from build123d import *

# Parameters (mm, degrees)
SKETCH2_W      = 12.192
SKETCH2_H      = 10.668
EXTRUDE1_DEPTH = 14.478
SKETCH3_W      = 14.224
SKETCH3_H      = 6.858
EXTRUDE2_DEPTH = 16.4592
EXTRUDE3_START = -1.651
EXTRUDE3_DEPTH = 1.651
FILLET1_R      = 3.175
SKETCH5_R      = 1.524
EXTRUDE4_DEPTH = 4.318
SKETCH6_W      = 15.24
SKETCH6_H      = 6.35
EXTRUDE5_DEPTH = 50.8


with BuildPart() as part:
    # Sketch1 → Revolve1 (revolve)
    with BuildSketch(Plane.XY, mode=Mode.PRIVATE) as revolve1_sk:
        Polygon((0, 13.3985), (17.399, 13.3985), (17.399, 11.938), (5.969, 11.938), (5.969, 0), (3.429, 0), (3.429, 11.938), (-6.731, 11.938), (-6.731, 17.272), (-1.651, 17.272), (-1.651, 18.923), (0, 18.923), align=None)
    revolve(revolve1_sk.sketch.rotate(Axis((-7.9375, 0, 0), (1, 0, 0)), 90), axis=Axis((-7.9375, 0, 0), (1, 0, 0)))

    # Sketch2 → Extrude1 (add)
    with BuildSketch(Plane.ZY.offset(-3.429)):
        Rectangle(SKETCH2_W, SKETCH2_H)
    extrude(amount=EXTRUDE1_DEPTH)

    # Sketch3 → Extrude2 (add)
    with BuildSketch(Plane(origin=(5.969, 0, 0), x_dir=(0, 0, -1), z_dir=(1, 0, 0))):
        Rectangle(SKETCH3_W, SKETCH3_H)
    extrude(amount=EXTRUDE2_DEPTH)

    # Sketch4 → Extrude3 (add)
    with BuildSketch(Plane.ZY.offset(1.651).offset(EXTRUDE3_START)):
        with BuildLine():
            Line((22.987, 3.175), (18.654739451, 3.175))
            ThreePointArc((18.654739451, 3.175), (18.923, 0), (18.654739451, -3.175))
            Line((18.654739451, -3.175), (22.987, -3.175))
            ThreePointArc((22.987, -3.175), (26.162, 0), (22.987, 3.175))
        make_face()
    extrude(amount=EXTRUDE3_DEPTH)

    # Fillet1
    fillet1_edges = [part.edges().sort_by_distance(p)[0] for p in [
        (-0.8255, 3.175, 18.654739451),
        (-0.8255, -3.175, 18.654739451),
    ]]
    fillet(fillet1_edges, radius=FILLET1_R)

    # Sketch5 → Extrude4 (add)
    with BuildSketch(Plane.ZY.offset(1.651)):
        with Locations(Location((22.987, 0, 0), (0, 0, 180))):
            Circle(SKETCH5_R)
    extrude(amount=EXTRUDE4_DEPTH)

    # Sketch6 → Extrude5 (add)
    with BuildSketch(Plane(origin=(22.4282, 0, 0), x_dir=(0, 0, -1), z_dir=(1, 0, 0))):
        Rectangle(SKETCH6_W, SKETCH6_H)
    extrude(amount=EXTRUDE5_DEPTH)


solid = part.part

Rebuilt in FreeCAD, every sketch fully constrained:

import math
import FreeCAD as App
import Part
import Sketcher

V = App.Vector
Q = App.Units.Quantity


def edges_at(feature, points):
    """Names of the edges that pass closest to the given points."""
    edges = feature.Shape.Edges
    near = lambda p: min(range(len(edges)), key=lambda i: edges[i].distToShape(Part.Vertex(*p))[0])
    return sorted({f"Edge{near(p) + 1}" for p in points})

doc = App.newDocument("Part")
body = doc.addObject("PartDesign::Body", "Body")

sketch1 = doc.addObject("Sketcher::SketchObject", "Sketch")
body.addObject(sketch1)
sketch1.AttachmentSupport = (doc.XY_Plane, [""])
sketch1.MapMode = "FlatFace"
sketch1.addGeometry([
    Part.LineSegment(V(17.4, 13.4, 0), V(0, 13.4, 0)),
    Part.LineSegment(V(0, 13.4, 0), V(0, 18.9, 0)),
    Part.LineSegment(V(0, 18.9, 0), V(-1.7, 18.9, 0)),
    Part.LineSegment(V(-1.7, 18.9, 0), V(-1.7, 17.3, 0)),
    Part.LineSegment(V(-1.7, 17.3, 0), V(-6.7, 17.3, 0)),
    Part.LineSegment(V(-6.7, 17.3, 0), V(-6.7, 11.9, 0)),
    Part.LineSegment(V(-6.7, 11.9, 0), V(3.4, 11.9, 0)),
    Part.LineSegment(V(3.4, 11.9, 0), V(3.4, 0, 0)),
    Part.LineSegment(V(3.4, 0, 0), V(6, 0, 0)),
    Part.LineSegment(V(6, 0, 0), V(6, 11.9, 0)),
    Part.LineSegment(V(6, 11.9, 0), V(17.4, 11.9, 0)),
    Part.LineSegment(V(17.4, 11.9, 0), V(17.4, 13.4, 0)),
], False)
sketch1.addConstraint([
    Sketcher.Constraint("Coincident", 0, 2, 1, 1),
    Sketcher.Constraint("Coincident", 1, 2, 2, 1),
    Sketcher.Constraint("Coincident", 2, 2, 3, 1),
    Sketcher.Constraint("Coincident", 3, 2, 4, 1),
    Sketcher.Constraint("Coincident", 4, 2, 5, 1),
    Sketcher.Constraint("Coincident", 5, 2, 6, 1),
    Sketcher.Constraint("Coincident", 6, 2, 7, 1),
    Sketcher.Constraint("Coincident", 7, 2, 8, 1),
    Sketcher.Constraint("Coincident", 8, 2, 9, 1),
    Sketcher.Constraint("Coincident", 9, 2, 10, 1),
    Sketcher.Constraint("Coincident", 10, 2, 11, 1),
    Sketcher.Constraint("Coincident", 11, 2, 0, 1),
    Sketcher.Constraint("Horizontal", 0),
    Sketcher.Constraint("Vertical", 1),
    Sketcher.Constraint("Horizontal", 2),
    Sketcher.Constraint("Vertical", 3),
    Sketcher.Constraint("Horizontal", 4),
    Sketcher.Constraint("Vertical", 5),
    Sketcher.Constraint("Horizontal", 6),
    Sketcher.Constraint("Vertical", 7),
    Sketcher.Constraint("Horizontal", 8),
    Sketcher.Constraint("Vertical", 9),
    Sketcher.Constraint("Horizontal", 10),
    Sketcher.Constraint("Vertical", 11),
    Sketcher.Constraint("PointOnObject", 0, 2, -2),
    Sketcher.Constraint("PointOnObject", 7, 2, -1),
    Sketcher.Constraint("Horizontal", 6, 2, 9, 2),
    Sketcher.Constraint("Equal", 2, 3),
    Sketcher.Constraint("DistanceX", 4, 2, 4, 1, Q("0.2 in")),
    Sketcher.Constraint("DistanceX", 6, 1, 6, 2, Q("0.4 in")),
    Sketcher.Constraint("DistanceX", 8, 1, 8, 2, Q("0.1 in")),
    Sketcher.Constraint("DistanceX", 10, 1, 10, 2, Q("0.45 in")),
    Sketcher.Constraint("DistanceY", 5, 2, 5, 1, Q("0.21 in")),
    Sketcher.Constraint("DistanceY", 7, 2, 7, 1, Q("0.47 in")),
    Sketcher.Constraint("DistanceX", 0, 2, 0, 1, Q("0.685 in")),
    Sketcher.Constraint("DistanceY", 1, 1, 1, 2, Q("0.2175 in")),
])
revolution = doc.addObject("PartDesign::Revolution", "Revolution")
body.addObject(revolution)
revolution.Profile = sketch1
revolution.ReferenceAxis = (sketch1, ["H_Axis"])
revolution.Angle = 360

sketch2 = doc.addObject("Sketcher::SketchObject", "Sketch001")
body.addObject(sketch2)
sketch2.AttachmentSupport = (doc.YZ_Plane, [""])
sketch2.MapMode = "FlatFace"
sketch2.AttachmentOffset = App.Placement(V(0, 0, 0.135 * 25.4), App.Rotation())
sketch2.addGeometry([
    Part.LineSegment(V(5, -6, 0), V(-5, -6, 0)),
    Part.LineSegment(V(-5, -6, 0), V(-5, 6, 0)),
    Part.LineSegment(V(-5, 6, 0), V(5, 6, 0)),
    Part.LineSegment(V(5, 6, 0), V(5, -6, 0)),
], False)
sketch2.addConstraint([
    Sketcher.Constraint("Coincident", 0, 2, 1, 1),
    Sketcher.Constraint("Coincident", 1, 2, 2, 1),
    Sketcher.Constraint("Coincident", 2, 2, 3, 1),
    Sketcher.Constraint("Coincident", 3, 2, 0, 1),
    Sketcher.Constraint("Horizontal", 0),
    Sketcher.Constraint("Vertical", 1),
    Sketcher.Constraint("Horizontal", 2),
    Sketcher.Constraint("Vertical", 3),
    Sketcher.Constraint("Symmetric", 0, 2, 2, 2, -1, 1),
    Sketcher.Constraint("DistanceX", 0, 2, 0, 1, Q("0.42 in")),
    Sketcher.Constraint("DistanceY", 1, 1, 1, 2, Q("0.48 in")),
])
pad1 = doc.addObject("PartDesign::Pad", "Pad")
body.addObject(pad1)
pad1.Profile = sketch2
pad1.Length = Q("0.57 in")
pad1.Reversed = True

sketch3 = doc.addObject("Sketcher::SketchObject", "Sketch002")
body.addObject(sketch3)
sketch3.AttachmentSupport = (doc.YZ_Plane, [""])
sketch3.MapMode = "FlatFace"
sketch3.AttachmentOffset = App.Placement(V(0, 0, 0.235 * 25.4), App.Rotation())
sketch3.addGeometry([
    Part.LineSegment(V(3, 7, 0), V(-3, 7, 0)),
    Part.LineSegment(V(-3, 7, 0), V(-3, -7, 0)),
    Part.LineSegment(V(-3, -7, 0), V(3, -7, 0)),
    Part.LineSegment(V(3, -7, 0), V(3, 7, 0)),
], False)
sketch3.addConstraint([
    Sketcher.Constraint("Coincident", 0, 2, 1, 1),
    Sketcher.Constraint("Coincident", 1, 2, 2, 1),
    Sketcher.Constraint("Coincident", 2, 2, 3, 1),
    Sketcher.Constraint("Coincident", 3, 2, 0, 1),
    Sketcher.Constraint("Horizontal", 0),
    Sketcher.Constraint("Vertical", 1),
    Sketcher.Constraint("Horizontal", 2),
    Sketcher.Constraint("Vertical", 3),
    Sketcher.Constraint("Symmetric", 0, 2, 2, 2, -1, 1),
    Sketcher.Constraint("DistanceX", 0, 2, 0, 1, Q("0.27 in")),
    Sketcher.Constraint("DistanceY", 1, 2, 1, 1, Q("0.56 in")),
])
pad2 = doc.addObject("PartDesign::Pad", "Pad001")
body.addObject(pad2)
pad2.Profile = sketch3
pad2.Length = Q("0.648 in")

sketch4 = doc.addObject("Sketcher::SketchObject", "Sketch003")
body.addObject(sketch4)
sketch4.AttachmentSupport = (doc.YZ_Plane, [""])
sketch4.MapMode = "FlatFace"
sketch4.addGeometry([
    Part.LineSegment(V(3.2, 23, 0), V(3.2, 18.7, 0)),
    Part.ArcOfCircle(Part.Circle(V(0, 0, 0), V(0, 0, 1), 18.9), math.radians(80.34), math.radians(99.66)),
    Part.LineSegment(V(-3.2, 18.7, 0), V(-3.2, 23, 0)),
    Part.ArcOfCircle(Part.Circle(V(0, 23, 0), V(0, 0, 1), 3.2), math.radians(0), math.radians(180)),
], False)
sketch4.addConstraint([
    Sketcher.Constraint("Coincident", 0, 2, 1, 1),
    Sketcher.Constraint("Coincident", 1, 2, 2, 1),
    Sketcher.Constraint("Tangent", 2, 2, 3, 2),
    Sketcher.Constraint("Tangent", 3, 1, 0, 1),
    Sketcher.Constraint("Vertical", 0),
    Sketcher.Constraint("Vertical", 2),
    Sketcher.Constraint("Coincident", 1, 3, -1, 1),
    Sketcher.Constraint("PointOnObject", 3, 3, -2),
    Sketcher.Constraint("Radius", 1, Q("0.745 in")),
    Sketcher.Constraint("Radius", 3, Q("0.125 in")),
    Sketcher.Constraint("DistanceY", -1, 1, 3, 3, Q("0.905 in")),
])
pad3 = doc.addObject("PartDesign::Pad", "Pad002")
body.addObject(pad3)
pad3.Profile = sketch4
pad3.Length = Q("0.065 in")
pad3.Reversed = True
doc.recompute()

fillet = doc.addObject("PartDesign::Fillet", "Fillet")
body.addObject(fillet)
fillet.Base = (pad3, edges_at(pad3, [(-0.826, 3.175, 18.655), (-0.826, -3.175, 18.655)]))
fillet.Radius = Q("0.125 in")

sketch5 = doc.addObject("Sketcher::SketchObject", "Sketch004")
body.addObject(sketch5)
sketch5.AttachmentSupport = (doc.YZ_Plane, [""])
sketch5.MapMode = "FlatFace"
sketch5.AttachmentOffset = App.Placement(V(0, 0, -0.065 * 25.4), App.Rotation())
sketch5.addGeometry(Part.Circle(V(0, 23, 0), V(0, 0, 1), 1.5), False)
sketch5.addConstraint([
    Sketcher.Constraint("PointOnObject", 0, 3, -2),
    Sketcher.Constraint("Diameter", 0, Q("0.12 in")),
    Sketcher.Constraint("DistanceY", -1, 1, 0, 3, Q("0.905 in")),
])
pad4 = doc.addObject("PartDesign::Pad", "Pad003")
body.addObject(pad4)
pad4.Profile = sketch5
pad4.Length = Q("0.17 in")
pad4.Reversed = True

sketch6 = doc.addObject("Sketcher::SketchObject", "Sketch005")
body.addObject(sketch6)
sketch6.AttachmentSupport = (doc.YZ_Plane, [""])
sketch6.MapMode = "FlatFace"
sketch6.AttachmentOffset = App.Placement(V(0, 0, 0.883 * 25.4), App.Rotation())
sketch6.addGeometry([
    Part.LineSegment(V(3, 8, 0), V(-3, 8, 0)),
    Part.LineSegment(V(-3, 8, 0), V(-3, -8, 0)),
    Part.LineSegment(V(-3, -8, 0), V(3, -8, 0)),
    Part.LineSegment(V(3, -8, 0), V(3, 8, 0)),
], False)
sketch6.addConstraint([
    Sketcher.Constraint("Coincident", 0, 2, 1, 1),
    Sketcher.Constraint("Coincident", 1, 2, 2, 1),
    Sketcher.Constraint("Coincident", 2, 2, 3, 1),
    Sketcher.Constraint("Coincident", 3, 2, 0, 1),
    Sketcher.Constraint("Horizontal", 0),
    Sketcher.Constraint("Vertical", 1),
    Sketcher.Constraint("Horizontal", 2),
    Sketcher.Constraint("Vertical", 3),
    Sketcher.Constraint("Symmetric", 0, 2, 2, 2, -1, 1),
    Sketcher.Constraint("DistanceY", 1, 2, 1, 1, Q("0.6 in")),
    Sketcher.Constraint("DistanceX", 0, 2, 0, 1, Q("0.25 in")),
])
pad5 = doc.addObject("PartDesign::Pad", "Pad004")
body.addObject(pad5)
pad5.Profile = sketch6
pad5.Length = Q("2 in")

doc.recompute()
